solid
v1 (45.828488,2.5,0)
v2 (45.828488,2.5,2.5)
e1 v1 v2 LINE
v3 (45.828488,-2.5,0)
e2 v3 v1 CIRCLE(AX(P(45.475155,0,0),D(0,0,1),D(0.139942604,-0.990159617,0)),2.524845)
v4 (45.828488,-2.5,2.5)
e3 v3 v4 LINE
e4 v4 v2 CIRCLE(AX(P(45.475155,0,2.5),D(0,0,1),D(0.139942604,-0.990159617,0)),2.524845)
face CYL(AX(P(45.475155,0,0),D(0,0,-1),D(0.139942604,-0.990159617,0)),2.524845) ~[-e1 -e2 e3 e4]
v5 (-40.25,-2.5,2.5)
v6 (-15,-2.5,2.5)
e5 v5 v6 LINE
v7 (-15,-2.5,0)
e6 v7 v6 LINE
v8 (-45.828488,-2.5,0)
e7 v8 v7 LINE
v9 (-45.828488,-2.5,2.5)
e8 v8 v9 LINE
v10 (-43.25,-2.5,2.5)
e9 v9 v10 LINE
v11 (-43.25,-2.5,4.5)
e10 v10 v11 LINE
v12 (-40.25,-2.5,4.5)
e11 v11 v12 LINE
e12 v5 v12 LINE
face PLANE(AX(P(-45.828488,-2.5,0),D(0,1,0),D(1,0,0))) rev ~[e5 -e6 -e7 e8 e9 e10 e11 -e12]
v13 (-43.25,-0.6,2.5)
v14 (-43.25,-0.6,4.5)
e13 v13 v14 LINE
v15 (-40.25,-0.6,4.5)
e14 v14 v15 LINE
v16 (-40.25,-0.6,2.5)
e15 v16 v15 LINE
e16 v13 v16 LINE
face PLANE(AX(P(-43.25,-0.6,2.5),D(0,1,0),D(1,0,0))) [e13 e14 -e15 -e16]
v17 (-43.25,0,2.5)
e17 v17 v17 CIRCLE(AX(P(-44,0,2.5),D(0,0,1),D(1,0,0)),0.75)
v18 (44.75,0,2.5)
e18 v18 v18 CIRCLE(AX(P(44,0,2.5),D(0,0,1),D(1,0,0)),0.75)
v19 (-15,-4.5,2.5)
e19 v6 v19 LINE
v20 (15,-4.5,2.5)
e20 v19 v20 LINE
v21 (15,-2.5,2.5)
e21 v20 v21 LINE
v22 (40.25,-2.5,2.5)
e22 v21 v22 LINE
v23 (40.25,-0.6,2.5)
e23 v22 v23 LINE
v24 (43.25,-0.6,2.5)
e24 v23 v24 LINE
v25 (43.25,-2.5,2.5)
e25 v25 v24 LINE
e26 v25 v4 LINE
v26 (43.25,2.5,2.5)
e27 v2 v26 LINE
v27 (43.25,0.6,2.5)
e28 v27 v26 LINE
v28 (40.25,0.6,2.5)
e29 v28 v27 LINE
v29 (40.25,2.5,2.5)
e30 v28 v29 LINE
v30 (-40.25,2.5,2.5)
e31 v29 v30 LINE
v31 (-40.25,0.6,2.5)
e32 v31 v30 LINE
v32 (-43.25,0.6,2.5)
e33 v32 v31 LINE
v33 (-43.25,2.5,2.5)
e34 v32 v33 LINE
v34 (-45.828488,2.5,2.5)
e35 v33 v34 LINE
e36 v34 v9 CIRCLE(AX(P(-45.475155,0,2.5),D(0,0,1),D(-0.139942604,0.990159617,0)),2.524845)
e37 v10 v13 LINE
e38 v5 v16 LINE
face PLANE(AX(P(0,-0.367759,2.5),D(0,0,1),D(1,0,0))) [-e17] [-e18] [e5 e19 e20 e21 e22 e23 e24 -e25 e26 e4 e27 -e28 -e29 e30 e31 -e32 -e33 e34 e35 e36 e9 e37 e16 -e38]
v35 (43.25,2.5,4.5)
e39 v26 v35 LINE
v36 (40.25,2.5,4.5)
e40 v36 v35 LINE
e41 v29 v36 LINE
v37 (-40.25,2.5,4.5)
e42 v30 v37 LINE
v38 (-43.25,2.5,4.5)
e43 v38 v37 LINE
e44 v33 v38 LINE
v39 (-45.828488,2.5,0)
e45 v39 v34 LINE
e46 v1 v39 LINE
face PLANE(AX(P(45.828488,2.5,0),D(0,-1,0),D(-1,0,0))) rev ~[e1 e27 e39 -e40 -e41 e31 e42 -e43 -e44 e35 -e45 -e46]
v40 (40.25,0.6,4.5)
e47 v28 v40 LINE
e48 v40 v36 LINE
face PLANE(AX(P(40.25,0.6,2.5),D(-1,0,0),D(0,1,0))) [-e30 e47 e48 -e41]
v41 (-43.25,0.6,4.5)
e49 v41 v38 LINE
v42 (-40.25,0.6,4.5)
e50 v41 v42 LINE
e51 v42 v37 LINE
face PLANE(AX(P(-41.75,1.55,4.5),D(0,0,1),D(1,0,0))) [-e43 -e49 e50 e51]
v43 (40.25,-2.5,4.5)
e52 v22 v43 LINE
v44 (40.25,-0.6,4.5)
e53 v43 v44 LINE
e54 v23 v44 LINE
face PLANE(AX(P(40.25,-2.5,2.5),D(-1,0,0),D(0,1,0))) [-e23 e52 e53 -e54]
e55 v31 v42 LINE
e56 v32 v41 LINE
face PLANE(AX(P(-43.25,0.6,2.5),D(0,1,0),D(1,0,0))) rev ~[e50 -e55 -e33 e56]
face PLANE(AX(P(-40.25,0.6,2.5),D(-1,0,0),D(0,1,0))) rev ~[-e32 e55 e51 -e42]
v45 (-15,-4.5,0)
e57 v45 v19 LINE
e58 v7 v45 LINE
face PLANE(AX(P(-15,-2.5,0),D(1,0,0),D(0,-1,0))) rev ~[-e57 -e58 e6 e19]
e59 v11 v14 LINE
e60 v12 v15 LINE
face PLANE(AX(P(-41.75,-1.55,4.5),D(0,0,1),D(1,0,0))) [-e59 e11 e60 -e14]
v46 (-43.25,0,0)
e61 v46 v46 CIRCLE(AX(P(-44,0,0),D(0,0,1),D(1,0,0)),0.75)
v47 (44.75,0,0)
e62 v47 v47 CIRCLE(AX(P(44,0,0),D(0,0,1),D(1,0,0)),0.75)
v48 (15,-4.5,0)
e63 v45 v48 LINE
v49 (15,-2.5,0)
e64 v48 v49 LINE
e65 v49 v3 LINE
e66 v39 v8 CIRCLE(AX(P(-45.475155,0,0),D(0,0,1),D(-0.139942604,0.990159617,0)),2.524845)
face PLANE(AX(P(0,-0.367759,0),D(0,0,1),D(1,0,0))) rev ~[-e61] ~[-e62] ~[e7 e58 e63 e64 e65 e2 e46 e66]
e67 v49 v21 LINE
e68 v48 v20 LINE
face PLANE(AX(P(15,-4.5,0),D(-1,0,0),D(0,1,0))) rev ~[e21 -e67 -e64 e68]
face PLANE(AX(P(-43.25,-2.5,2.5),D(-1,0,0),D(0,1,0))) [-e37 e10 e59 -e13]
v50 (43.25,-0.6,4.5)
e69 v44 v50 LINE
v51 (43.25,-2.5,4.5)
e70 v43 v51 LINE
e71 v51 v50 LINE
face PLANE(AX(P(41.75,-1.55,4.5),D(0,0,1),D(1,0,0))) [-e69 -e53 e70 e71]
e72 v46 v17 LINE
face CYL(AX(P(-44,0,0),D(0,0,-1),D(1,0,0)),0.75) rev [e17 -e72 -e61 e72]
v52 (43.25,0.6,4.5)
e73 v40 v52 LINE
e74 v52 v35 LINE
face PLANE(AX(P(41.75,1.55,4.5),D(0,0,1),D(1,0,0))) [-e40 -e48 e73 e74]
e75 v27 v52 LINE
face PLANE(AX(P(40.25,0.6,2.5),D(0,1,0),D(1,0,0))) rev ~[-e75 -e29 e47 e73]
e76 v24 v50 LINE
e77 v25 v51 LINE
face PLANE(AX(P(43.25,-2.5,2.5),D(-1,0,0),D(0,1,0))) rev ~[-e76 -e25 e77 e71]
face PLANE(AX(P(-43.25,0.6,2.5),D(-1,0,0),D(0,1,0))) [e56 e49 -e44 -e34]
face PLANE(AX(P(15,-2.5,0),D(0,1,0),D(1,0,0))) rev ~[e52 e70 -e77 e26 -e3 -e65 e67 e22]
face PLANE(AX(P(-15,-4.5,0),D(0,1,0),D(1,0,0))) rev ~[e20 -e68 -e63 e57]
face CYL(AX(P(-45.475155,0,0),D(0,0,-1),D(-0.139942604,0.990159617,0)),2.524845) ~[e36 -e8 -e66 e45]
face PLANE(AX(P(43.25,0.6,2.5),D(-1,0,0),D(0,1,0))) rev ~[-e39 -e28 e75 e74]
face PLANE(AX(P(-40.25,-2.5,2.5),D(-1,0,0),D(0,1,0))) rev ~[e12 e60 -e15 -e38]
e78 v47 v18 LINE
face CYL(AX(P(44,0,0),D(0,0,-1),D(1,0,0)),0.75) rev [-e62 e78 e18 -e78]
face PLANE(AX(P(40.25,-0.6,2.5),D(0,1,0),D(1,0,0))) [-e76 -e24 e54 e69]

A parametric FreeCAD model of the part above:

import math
import FreeCAD as App
import Part
import Sketcher
from FreeCAD import Vector


def add_polygon(sketch, points):
    """Adds a closed chain of lines whose ends are joined by coincident constraints."""
    first, n = sketch.GeometryCount, len(points)
    for a, b in zip(points, points[1:] + points[:1]):
        sketch.addGeometry(Part.LineSegment(App.Vector(*a, 0), App.Vector(*b, 0)), False)
    for i in range(n):
        sketch.addConstraint(Sketcher.Constraint("Coincident", first + i, 2, first + (i + 1) % n, 1))

doc = App.newDocument("Part")
body = doc.addObject("PartDesign::Body", "Body")

sketch1 = doc.addObject("Sketcher::SketchObject", "Sketch")
body.addObject(sketch1)
sketch1.AttachmentSupport = (doc.XY_Plane, [""])
sketch1.MapMode = "FlatFace"
sketch1.addGeometry([
    Part.LineSegment(Vector(45.828488, 2.5, 0), Vector(-45.828488, 2.5, 0)),
    Part.ArcOfCircle(Part.Circle(Vector(-45.475155, 0, 0), Vector(0, 0, 1), 2.524845), math.radians(98.044525), math.radians(261.955475)),
    Part.LineSegment(Vector(-45.828488, -2.5, 0), Vector(-15, -2.5, 0)),
    Part.LineSegment(Vector(-15, -2.5, 0), Vector(-15, -4.5, 0)),
    Part.LineSegment(Vector(-15, -4.5, 0), Vector(15, -4.5, 0)),
    Part.LineSegment(Vector(15, -4.5, 0), Vector(15, -2.5, 0)),
    Part.LineSegment(Vector(15, -2.5, 0), Vector(45.828488, -2.5, 0)),
    Part.ArcOfCircle(Part.Circle(Vector(45.475155, 0, 0), Vector(0, 0, 1), 2.524845), math.radians(-81.955475), math.radians(81.955475)),
    Part.Circle(Vector(-44, 0, 0), Vector(0, 0, 1), 0.75),
    Part.Circle(Vector(44, 0, 0), Vector(0, 0, 1), 0.75),
], False)
sketch1.addConstraint([
    Sketcher.Constraint("Coincident", 0, 2, 1, 1),
    Sketcher.Constraint("Coincident", 1, 2, 2, 1),
    Sketcher.Constraint("Coincident", 2, 2, 3, 1),
    Sketcher.Constraint("Coincident", 3, 2, 4, 1),
    Sketcher.Constraint("Coincident", 4, 2, 5, 1),
    Sketcher.Constraint("Coincident", 5, 2, 6, 1),
    Sketcher.Constraint("Coincident", 6, 2, 7, 1),
    Sketcher.Constraint("Coincident", 7, 2, 0, 1),
    Sketcher.Constraint("Horizontal", 0),
    Sketcher.Constraint("Horizontal", 2),
    Sketcher.Constraint("Vertical", 3),
    Sketcher.Constraint("Horizontal", 4),
    Sketcher.Constraint("Vertical", 5),
    Sketcher.Constraint("Horizontal", 6),
    Sketcher.Constraint("Equal", 1, 7),
    Sketcher.Constraint("Equal", 8, 9),
    Sketcher.Constraint("Symmetric", 1, 3, 7, 3, -1, 1),
    Sketcher.Constraint("Symmetric", 8, 3, 9, 3, -1, 1),
    Sketcher.Constraint("Symmetric", 2, 2, 5, 2, -2),
    Sketcher.Constraint("Symmetric", 0, 2, 1, 2, -1),
    Sketcher.Constraint("PointOnObject", 8, 3, -1),
    Sketcher.Constraint("Diameter", 8, 1.5),
    Sketcher.Constraint("DistanceX", 4, 1, 4, 2, 30.0),
    Sketcher.Constraint("DistanceY", 3, 2, 3, 1, 2.0),
    Sketcher.Constraint("DistanceX", 8, 3, -1, 1, 44.0),
    Sketcher.Constraint("DistanceY", 1, 2, 0, 2, 5.0),
    Sketcher.Constraint("Radius", 1, 2.524845),
    Sketcher.Constraint("DistanceX", 2, 1, 2, 2, 30.828488),
])
pad1 = doc.addObject("PartDesign::Pad", "Pad")
body.addObject(pad1)
pad1.Profile = sketch1
pad1.Length = 2.5

sketch2 = doc.addObject("Sketcher::SketchObject", "Sketch001")
body.addObject(sketch2)
sketch2.AttachmentSupport = (doc.XY_Plane, [""])
sketch2.MapMode = "FlatFace"
sketch2.AttachmentOffset = App.Placement(Vector(0, 0, 2.5), App.Rotation())
add_polygon(sketch2, [(-43.25, 2.5), (-43.25, 0.6), (-40.25, 0.6), (-40.25, 2.5)])
add_polygon(sketch2, [(-43.25, -0.6), (-43.25, -2.5), (-40.25, -2.5), (-40.25, -0.6)])
add_polygon(sketch2, [(40.25, -0.6), (40.25, -2.5), (43.25, -2.5), (43.25, -0.6)])
add_polygon(sketch2, [(40.25, 2.5), (40.25, 0.6), (43.25, 0.6), (43.25, 2.5)])
sketch2.addConstraint([
    Sketcher.Constraint("Vertical", 0),
    Sketcher.Constraint("Horizontal", 1),
    Sketcher.Constraint("Vertical", 2),
    Sketcher.Constraint("Horizontal", 3),
    Sketcher.Constraint("Vertical", 4),
    Sketcher.Constraint("Horizontal", 5),
    Sketcher.Constraint("Vertical", 6),
    Sketcher.Constraint("Horizontal", 7),
    Sketcher.Constraint("Vertical", 8),
    Sketcher.Constraint("Horizontal", 9),
    Sketcher.Constraint("Vertical", 10),
    Sketcher.Constraint("Horizontal", 11),
    Sketcher.Constraint("Vertical", 12),
    Sketcher.Constraint("Horizontal", 13),
    Sketcher.Constraint("Vertical", 14),
    Sketcher.Constraint("Horizontal", 15),
    Sketcher.Constraint("Symmetric", 2, 2, 8, 2, -1, 1),
    Sketcher.Constraint("Symmetric", 0, 2, 10, 2, -1, 1),
    Sketcher.Constraint("Symmetric", 6, 2, 12, 2, -1, 1),
    Sketcher.Constraint("Symmetric", 4, 2, 14, 2, -1, 1),
    Sketcher.Constraint("Symmetric", 5, 2, 8, 2, -2),
    Sketcher.Constraint("Symmetric", 7, 2, 10, 2, -2),
    Sketcher.Constraint("DistanceX", 1, 1, 1, 2, 3.0),
    Sketcher.Constraint("DistanceY", 0, 2, 0, 1, 1.9),
    Sketcher.Constraint("DistanceY", 4, 2, 3, 2, 5.0),
    Sketcher.Constraint("DistanceX", 5, 2, 8, 2, 80.5),
])
pad2 = doc.addObject("PartDesign::Pad", "Pad001")
body.addObject(pad2)
pad2.Profile = sketch2
pad2.Length = 2

doc.recompute()
